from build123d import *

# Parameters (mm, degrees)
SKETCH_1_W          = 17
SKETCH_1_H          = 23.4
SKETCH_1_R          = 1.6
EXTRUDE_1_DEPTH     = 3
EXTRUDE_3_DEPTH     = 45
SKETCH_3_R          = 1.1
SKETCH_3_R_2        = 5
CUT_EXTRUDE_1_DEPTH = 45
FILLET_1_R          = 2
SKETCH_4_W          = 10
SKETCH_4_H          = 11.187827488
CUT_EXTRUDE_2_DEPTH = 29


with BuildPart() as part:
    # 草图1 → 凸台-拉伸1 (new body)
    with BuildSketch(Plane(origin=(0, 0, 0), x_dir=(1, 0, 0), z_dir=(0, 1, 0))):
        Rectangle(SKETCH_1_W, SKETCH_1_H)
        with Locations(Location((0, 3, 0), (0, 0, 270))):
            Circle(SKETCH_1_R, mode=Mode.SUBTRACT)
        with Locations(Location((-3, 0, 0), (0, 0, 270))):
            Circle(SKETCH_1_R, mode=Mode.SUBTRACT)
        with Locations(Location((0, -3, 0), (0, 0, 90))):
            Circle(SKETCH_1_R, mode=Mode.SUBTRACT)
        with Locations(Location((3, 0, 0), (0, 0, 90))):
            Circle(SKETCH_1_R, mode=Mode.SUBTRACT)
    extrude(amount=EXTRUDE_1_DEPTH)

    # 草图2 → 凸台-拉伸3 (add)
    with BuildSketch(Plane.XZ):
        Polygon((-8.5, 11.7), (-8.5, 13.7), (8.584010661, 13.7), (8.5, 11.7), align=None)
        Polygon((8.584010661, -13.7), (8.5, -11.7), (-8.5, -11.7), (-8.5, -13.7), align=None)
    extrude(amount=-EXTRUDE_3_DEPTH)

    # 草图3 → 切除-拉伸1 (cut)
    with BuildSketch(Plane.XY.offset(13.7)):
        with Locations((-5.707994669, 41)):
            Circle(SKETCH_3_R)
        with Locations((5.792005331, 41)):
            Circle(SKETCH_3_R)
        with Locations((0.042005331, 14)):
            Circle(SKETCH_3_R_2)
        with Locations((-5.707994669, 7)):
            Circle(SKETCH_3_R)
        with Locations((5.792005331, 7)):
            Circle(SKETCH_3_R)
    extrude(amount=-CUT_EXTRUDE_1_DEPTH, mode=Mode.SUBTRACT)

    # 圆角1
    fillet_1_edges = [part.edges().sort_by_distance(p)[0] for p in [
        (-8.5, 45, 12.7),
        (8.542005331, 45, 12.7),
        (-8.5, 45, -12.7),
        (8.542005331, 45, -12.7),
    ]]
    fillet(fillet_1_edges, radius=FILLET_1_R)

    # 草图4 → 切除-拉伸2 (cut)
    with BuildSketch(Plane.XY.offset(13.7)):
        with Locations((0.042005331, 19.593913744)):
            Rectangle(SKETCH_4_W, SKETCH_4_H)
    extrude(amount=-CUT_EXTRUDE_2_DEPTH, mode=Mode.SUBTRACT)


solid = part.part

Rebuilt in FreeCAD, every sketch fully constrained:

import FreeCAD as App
import Part
import Sketcher

V = App.Vector


def edges_at(feature, points):
    """Names of the edges that pass closest to the given points."""
    edges = feature.Shape.Edges
    near = lambda p: min(range(len(edges)), key=lambda i: edges[i].distToShape(Part.Vertex(*p))[0])
    return sorted({f"Edge{near(p) + 1}" for p in points})

doc = App.newDocument("Part")
body = doc.addObject("PartDesign::Body", "Body")

# Sketch on XZ plane
sketch1 = doc.addObject("Sketcher::SketchObject", "Sketch")
body.addObject(sketch1)
sketch1.AttachmentSupport = (doc.XZ_Plane, [""])
sketch1.MapMode = "FlatFace"
sketch1.addGeometry([
    Part.LineSegment(V(-8.5, -11.7, 0), V(-8.5, 11.7, 0)),  # 0
    Part.LineSegment(V(-8.5, 11.7, 0), V(8.5, 11.7, 0)),  # 1
    Part.LineSegment(V(8.5, 11.7, 0), V(8.5, -11.7, 0)),  # 2
    Part.LineSegment(V(8.5, -11.7, 0), V(-8.5, -11.7, 0)),  # 3
    Part.Circle(V(0, 3, 0), V(0, 0, 1), 1.6),  # 4
    Part.Circle(V(-3, 0, 0), V(0, 0, 1), 1.6),  # 5
    Part.Circle(V(3, 0, 0), V(0, 0, 1), 1.6),  # 6
    Part.Circle(V(0, -3, 0), V(0, 0, 1), 1.6),  # 7
], False)
sketch1.addConstraint([
    Sketcher.Constraint("Coincident", 0, 2, 1, 1),
    Sketcher.Constraint("Coincident", 1, 2, 2, 1),
    Sketcher.Constraint("Coincident", 2, 2, 3, 1),
    Sketcher.Constraint("Coincident", 3, 2, 0, 1),
    Sketcher.Constraint("Vertical", 0),
    Sketcher.Constraint("Horizontal", 1),
    Sketcher.Constraint("Vertical", 2),
    Sketcher.Constraint("Horizontal", 3),
    Sketcher.Constraint("Equal", 4, 5),
    Sketcher.Constraint("Equal", 5, 6),
    Sketcher.Constraint("Equal", 6, 7),
    Sketcher.Constraint("Symmetric", 5, 3, 6, 3, -1, 1),
    Sketcher.Constraint("Symmetric", 4, 3, 7, 3, -1, 1),
    Sketcher.Constraint("Symmetric", 0, 2, 2, 2, -1, 1),
    Sketcher.Constraint("PointOnObject", 4, 3, -2),
    Sketcher.Constraint("PointOnObject", 5, 3, -1),
    Sketcher.Constraint("Diameter", 4, 3.2),
    Sketcher.Constraint("DistanceX", 1, 1, 1, 2, 17.0),
    Sketcher.Constraint("DistanceY", 0, 1, 0, 2, 23.4),
    Sketcher.Constraint("DistanceY", -1, 1, 4, 3, 3.0),
    Sketcher.Constraint("DistanceX", 5, 3, -1, 1, 3.0),
])
pad1 = doc.addObject("PartDesign::Pad", "Pad")
body.addObject(pad1)
pad1.Profile = sketch1
pad1.Length = 3
pad1.Reversed = True

# Sketch on XZ plane
sketch2 = doc.addObject("Sketcher::SketchObject", "Sketch001")
body.addObject(sketch2)
sketch2.AttachmentSupport = (doc.XZ_Plane, [""])
sketch2.MapMode = "FlatFace"
sketch2.addGeometry([
    Part.LineSegment(V(-8.5, 13.7, 0), V(-8.5, 11.7, 0)),  # 0
    Part.LineSegment(V(-8.5, 11.7, 0), V(8.5, 11.7, 0)),  # 1
    Part.LineSegment(V(8.5, 11.7, 0), V(8.584011, 13.7, 0)),  # 2
    Part.LineSegment(V(8.584011, 13.7, 0), V(-8.5, 13.7, 0)),  # 3
    Part.LineSegment(V(8.584011, -13.7, 0), V(8.5, -11.7, 0)),  # 4
    Part.LineSegment(V(8.5, -11.7, 0), V(-8.5, -11.7, 0)),  # 5
    Part.LineSegment(V(-8.5, -11.7, 0), V(-8.5, -13.7, 0)),  # 6
    Part.LineSegment(V(-8.5, -13.7, 0), V(8.584011, -13.7, 0)),  # 7
], False)
sketch2.addConstraint([
    Sketcher.Constraint("Coincident", 0, 2, 1, 1),
    Sketcher.Constraint("Coincident", 1, 2, 2, 1),
    Sketcher.Constraint("Coincident", 2, 2, 3, 1),
    Sketcher.Constraint("Coincident", 3, 2, 0, 1),
    Sketcher.Constraint("Coincident", 4, 2, 5, 1),
    Sketcher.Constraint("Coincident", 5, 2, 6, 1),
    Sketcher.Constraint("Coincident", 6, 2, 7, 1),
    Sketcher.Constraint("Coincident", 7, 2, 4, 1),
    Sketcher.Constraint("Vertical", 0),
    Sketcher.Constraint("Horizontal", 1),
    Sketcher.Constraint("Horizontal", 3),
    Sketcher.Constraint("Horizontal", 5),
    Sketcher.Constraint("Vertical", 6),
    Sketcher.Constraint("Horizontal", 7),
    Sketcher.Constraint("Symmetric", 0, 2, 4, 2, -1, 1),
    Sketcher.Constraint("Symmetric", 3, 2, 6, 2, -1),
    Sketcher.Constraint("Vertical", 1, 2, 4, 2),
    Sketcher.Constraint("Vertical", 2, 2, 7, 2),
    Sketcher.Constraint("DistanceX", 1, 1, 1, 2, 17.0),
    Sketcher.Constraint("DistanceY", 0, 2, 0, 1, 2.0),
    Sketcher.Constraint("DistanceY", -1, 1, 0, 2, 11.7),
    Sketcher.Constraint("DistanceX", 3, 2, 3, 1, 17.084011),
])
pad2 = doc.addObject("PartDesign::Pad", "Pad001")
body.addObject(pad2)
pad2.Profile = sketch2
pad2.Length = 45
pad2.Reversed = True

# Sketch on XY plane
sketch3 = doc.addObject("Sketcher::SketchObject", "Sketch002")
body.addObject(sketch3)
sketch3.AttachmentSupport = (doc.XY_Plane, [""])
sketch3.MapMode = "FlatFace"
sketch3.AttachmentOffset = App.Placement(V(0, 0, 13.7), App.Rotation())
sketch3.addGeometry([
    Part.Circle(V(-5.707995, 41, 0), V(0, 0, 1), 1.1),  # 0
    Part.Circle(V(5.792005, 41, 0), V(0, 0, 1), 1.1),  # 1
    Part.Circle(V(0.042005, 14, 0), V(0, 0, 1), 5),  # 2
    Part.Circle(V(-5.707995, 7, 0), V(0, 0, 1), 1.1),  # 3
    Part.Circle(V(5.792005, 7, 0), V(0, 0, 1), 1.1),  # 4
], False)
sketch3.addConstraint([
    Sketcher.Constraint("Equal", 0, 1),
    Sketcher.Constraint("Equal", 1, 3),
    Sketcher.Constraint("Equal", 3, 4),
    Sketcher.Constraint("Horizontal", 0, 3, 1, 3),
    Sketcher.Constraint("Horizontal", 3, 3, 4, 3),
    Sketcher.Constraint("Vertical", 0, 3, 3, 3),
    Sketcher.Constraint("Vertical", 1, 3, 4, 3),
    Sketcher.Constraint("Diameter", 2, 10.0),
    Sketcher.Constraint("Diameter", 0, 2.2),
    Sketcher.Constraint("DistanceY", -1, 1, 0, 3, 41.0),
    Sketcher.Constraint("DistanceY", -1, 1, 2, 3, 14.0),
    Sketcher.Constraint("DistanceY", -1, 1, 3, 3, 7.0),
    Sketcher.Constraint("DistanceX", 0, 3, 1, 3, 11.5),
    Sketcher.Constraint("DistanceX", 0, 3, 2, 3, 5.75),
    Sketcher.Constraint("DistanceX", 0, 3, -1, 1, 5.707995),
])
pocket1 = doc.addObject("PartDesign::Pocket", "Pocket")
body.addObject(pocket1)
pocket1.Profile = sketch3
pocket1.Length = 45
doc.recompute()

fillet = doc.addObject("PartDesign::Fillet", "Fillet")
body.addObject(fillet)
fillet.Base = (pocket1, edges_at(pocket1, [
    (-8.5, 45, 12.7),
    (8.542, 45, 12.7),
    (-8.5, 45, -12.7),
    (8.542, 45, -12.7),
]))
fillet.Radius = 2

# Sketch on XY plane
sketch4 = doc.addObject("Sketcher::SketchObject", "Sketch003")
body.addObject(sketch4)
sketch4.AttachmentSupport = (doc.XY_Plane, [""])
sketch4.MapMode = "FlatFace"
sketch4.AttachmentOffset = App.Placement(V(0, 0, 13.7), App.Rotation())
sketch4.addGeometry([
    Part.LineSegment(V(-4.957995, 25.187827, 0), V(-4.957995, 14, 0)),
    Part.LineSegment(V(-4.957995, 14, 0), V(5.042005, 14, 0)),
    Part.LineSegment(V(5.042005, 14, 0), V(5.042005, 25.187827, 0)),
    Part.LineSegment(V(5.042005, 25.187827, 0), V(-4.957995, 25.187827, 0)),
], False)
sketch4.addConstraint([
    Sketcher.Constraint("Coincident", 0, 2, 1, 1),
    Sketcher.Constraint("Coincident", 1, 2, 2, 1),
    Sketcher.Constraint("Coincident", 2, 2, 3, 1),
    Sketcher.Constraint("Coincident", 3, 2, 0, 1),
    Sketcher.Constraint("Vertical", 0),
    Sketcher.Constraint("Horizontal", 1),
    Sketcher.Constraint("Vertical", 2),
    Sketcher.Constraint("Horizontal", 3),
    Sketcher.Constraint("DistanceX", 1, 1, 1, 2, 10.0),
    Sketcher.Constraint("DistanceY", -1, 1, 0, 2, 14.0),
    Sketcher.Constraint("DistanceY", 0, 2, 0, 1, 11.187827),
    Sketcher.Constraint("DistanceX", 0, 2, -1, 1, 4.957995),
])
pocket2 = doc.addObject("PartDesign::Pocket", "Pocket001")
body.addObject(pocket2)
pocket2.Profile = sketch4
pocket2.Length = 29

doc.recompute()
